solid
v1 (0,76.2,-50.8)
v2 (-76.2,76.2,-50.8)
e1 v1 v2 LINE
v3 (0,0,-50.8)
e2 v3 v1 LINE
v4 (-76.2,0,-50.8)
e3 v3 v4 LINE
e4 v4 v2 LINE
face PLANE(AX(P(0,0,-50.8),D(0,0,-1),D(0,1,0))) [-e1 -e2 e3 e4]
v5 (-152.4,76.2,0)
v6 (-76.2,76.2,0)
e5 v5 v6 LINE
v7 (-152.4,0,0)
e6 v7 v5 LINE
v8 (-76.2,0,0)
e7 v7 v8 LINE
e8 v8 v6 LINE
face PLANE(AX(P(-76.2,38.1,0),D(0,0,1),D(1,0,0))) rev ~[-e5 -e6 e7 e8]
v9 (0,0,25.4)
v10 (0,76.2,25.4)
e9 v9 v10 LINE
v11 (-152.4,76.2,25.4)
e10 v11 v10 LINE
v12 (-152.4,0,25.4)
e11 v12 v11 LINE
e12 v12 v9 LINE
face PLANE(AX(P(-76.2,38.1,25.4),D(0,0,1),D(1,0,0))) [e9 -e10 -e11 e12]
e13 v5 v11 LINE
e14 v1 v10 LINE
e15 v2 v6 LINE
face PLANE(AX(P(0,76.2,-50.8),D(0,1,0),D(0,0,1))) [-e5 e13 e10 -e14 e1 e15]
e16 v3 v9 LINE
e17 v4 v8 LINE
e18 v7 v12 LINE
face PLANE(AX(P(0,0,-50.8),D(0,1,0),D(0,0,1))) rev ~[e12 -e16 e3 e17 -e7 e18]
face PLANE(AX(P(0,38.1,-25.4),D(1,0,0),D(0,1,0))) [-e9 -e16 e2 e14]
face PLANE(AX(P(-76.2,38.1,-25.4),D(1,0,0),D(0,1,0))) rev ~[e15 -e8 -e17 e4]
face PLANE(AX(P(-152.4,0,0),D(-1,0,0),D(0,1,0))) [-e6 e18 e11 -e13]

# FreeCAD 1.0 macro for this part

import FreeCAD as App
import Part
import Sketcher
from FreeCAD import Vector
Q = App.Units.Quantity


def add_polygon(sketch, points):
    """Adds a closed chain of lines whose ends are joined by coincident constraints."""
    first, n = sketch.GeometryCount, len(points)
    for a, b in zip(points, points[1:] + points[:1]):
        sketch.addGeometry(Part.LineSegment(App.Vector(*a, 0), App.Vector(*b, 0)), False)
    for i in range(n):
        sketch.addConstraint(Sketcher.Constraint("Coincident", first + i, 2, first + (i + 1) % n, 1))

doc = App.newDocument("Part")
body = doc.addObject("PartDesign::Body", "Body")

# Sketch on XY plane
sketch1 = body.newObject("Sketcher::SketchObject", "Sketch")
sketch1.AttachmentSupport = (doc.getObject("XY_Plane"), [""])
sketch1.MapMode = "FlatFace"
add_polygon(sketch1, [(-152, 76), (-152, 0), (0, 0), (0, 76)])  # lines 0-3
sketch1.addConstraint([
    Sketcher.Constraint("Vertical", 0),
    Sketcher.Constraint("Horizontal", 1),
    Sketcher.Constraint("Vertical", 2),
    Sketcher.Constraint("Horizontal", 3),
    Sketcher.Constraint("Coincident", 1, 2, -1, 1),
    Sketcher.Constraint("DistanceX", 1, 1, 1, 2, Q("6 in")),
    Sketcher.Constraint("DistanceY", 0, 2, 0, 1, Q("3 in")),
])
pad1 = body.newObject("PartDesign::Pad", "Pad")
pad1.Profile = sketch1
pad1.Length = Q("1 in")

# Sketch on YZ plane
sketch2 = body.newObject("Sketcher::SketchObject", "Sketch001")
sketch2.AttachmentSupport = (doc.getObject("YZ_Plane"), [""])
sketch2.MapMode = "FlatFace"
add_polygon(sketch2, [(0, 0), (0, -51), (76, -51), (76, 0)])  # lines 0-3
sketch2.addConstraint([
    Sketcher.Constraint("Vertical", 0),
    Sketcher.Constraint("Horizontal", 1),
    Sketcher.Constraint("Vertical", 2),
    Sketcher.Constraint("Horizontal", 3),
    Sketcher.Constraint("Coincident", 3, 2, -1, 1),
    Sketcher.Constraint("DistanceX", 1, 1, 1, 2, Q("3 in")),
    Sketcher.Constraint("DistanceY", 0, 2, 0, 1, Q("2 in")),
])
pad2 = body.newObject("PartDesign::Pad", "Pad001")
pad2.Profile = sketch2
pad2.Length = Q("3 in")
pad2.Reversed = True

doc.recompute()
